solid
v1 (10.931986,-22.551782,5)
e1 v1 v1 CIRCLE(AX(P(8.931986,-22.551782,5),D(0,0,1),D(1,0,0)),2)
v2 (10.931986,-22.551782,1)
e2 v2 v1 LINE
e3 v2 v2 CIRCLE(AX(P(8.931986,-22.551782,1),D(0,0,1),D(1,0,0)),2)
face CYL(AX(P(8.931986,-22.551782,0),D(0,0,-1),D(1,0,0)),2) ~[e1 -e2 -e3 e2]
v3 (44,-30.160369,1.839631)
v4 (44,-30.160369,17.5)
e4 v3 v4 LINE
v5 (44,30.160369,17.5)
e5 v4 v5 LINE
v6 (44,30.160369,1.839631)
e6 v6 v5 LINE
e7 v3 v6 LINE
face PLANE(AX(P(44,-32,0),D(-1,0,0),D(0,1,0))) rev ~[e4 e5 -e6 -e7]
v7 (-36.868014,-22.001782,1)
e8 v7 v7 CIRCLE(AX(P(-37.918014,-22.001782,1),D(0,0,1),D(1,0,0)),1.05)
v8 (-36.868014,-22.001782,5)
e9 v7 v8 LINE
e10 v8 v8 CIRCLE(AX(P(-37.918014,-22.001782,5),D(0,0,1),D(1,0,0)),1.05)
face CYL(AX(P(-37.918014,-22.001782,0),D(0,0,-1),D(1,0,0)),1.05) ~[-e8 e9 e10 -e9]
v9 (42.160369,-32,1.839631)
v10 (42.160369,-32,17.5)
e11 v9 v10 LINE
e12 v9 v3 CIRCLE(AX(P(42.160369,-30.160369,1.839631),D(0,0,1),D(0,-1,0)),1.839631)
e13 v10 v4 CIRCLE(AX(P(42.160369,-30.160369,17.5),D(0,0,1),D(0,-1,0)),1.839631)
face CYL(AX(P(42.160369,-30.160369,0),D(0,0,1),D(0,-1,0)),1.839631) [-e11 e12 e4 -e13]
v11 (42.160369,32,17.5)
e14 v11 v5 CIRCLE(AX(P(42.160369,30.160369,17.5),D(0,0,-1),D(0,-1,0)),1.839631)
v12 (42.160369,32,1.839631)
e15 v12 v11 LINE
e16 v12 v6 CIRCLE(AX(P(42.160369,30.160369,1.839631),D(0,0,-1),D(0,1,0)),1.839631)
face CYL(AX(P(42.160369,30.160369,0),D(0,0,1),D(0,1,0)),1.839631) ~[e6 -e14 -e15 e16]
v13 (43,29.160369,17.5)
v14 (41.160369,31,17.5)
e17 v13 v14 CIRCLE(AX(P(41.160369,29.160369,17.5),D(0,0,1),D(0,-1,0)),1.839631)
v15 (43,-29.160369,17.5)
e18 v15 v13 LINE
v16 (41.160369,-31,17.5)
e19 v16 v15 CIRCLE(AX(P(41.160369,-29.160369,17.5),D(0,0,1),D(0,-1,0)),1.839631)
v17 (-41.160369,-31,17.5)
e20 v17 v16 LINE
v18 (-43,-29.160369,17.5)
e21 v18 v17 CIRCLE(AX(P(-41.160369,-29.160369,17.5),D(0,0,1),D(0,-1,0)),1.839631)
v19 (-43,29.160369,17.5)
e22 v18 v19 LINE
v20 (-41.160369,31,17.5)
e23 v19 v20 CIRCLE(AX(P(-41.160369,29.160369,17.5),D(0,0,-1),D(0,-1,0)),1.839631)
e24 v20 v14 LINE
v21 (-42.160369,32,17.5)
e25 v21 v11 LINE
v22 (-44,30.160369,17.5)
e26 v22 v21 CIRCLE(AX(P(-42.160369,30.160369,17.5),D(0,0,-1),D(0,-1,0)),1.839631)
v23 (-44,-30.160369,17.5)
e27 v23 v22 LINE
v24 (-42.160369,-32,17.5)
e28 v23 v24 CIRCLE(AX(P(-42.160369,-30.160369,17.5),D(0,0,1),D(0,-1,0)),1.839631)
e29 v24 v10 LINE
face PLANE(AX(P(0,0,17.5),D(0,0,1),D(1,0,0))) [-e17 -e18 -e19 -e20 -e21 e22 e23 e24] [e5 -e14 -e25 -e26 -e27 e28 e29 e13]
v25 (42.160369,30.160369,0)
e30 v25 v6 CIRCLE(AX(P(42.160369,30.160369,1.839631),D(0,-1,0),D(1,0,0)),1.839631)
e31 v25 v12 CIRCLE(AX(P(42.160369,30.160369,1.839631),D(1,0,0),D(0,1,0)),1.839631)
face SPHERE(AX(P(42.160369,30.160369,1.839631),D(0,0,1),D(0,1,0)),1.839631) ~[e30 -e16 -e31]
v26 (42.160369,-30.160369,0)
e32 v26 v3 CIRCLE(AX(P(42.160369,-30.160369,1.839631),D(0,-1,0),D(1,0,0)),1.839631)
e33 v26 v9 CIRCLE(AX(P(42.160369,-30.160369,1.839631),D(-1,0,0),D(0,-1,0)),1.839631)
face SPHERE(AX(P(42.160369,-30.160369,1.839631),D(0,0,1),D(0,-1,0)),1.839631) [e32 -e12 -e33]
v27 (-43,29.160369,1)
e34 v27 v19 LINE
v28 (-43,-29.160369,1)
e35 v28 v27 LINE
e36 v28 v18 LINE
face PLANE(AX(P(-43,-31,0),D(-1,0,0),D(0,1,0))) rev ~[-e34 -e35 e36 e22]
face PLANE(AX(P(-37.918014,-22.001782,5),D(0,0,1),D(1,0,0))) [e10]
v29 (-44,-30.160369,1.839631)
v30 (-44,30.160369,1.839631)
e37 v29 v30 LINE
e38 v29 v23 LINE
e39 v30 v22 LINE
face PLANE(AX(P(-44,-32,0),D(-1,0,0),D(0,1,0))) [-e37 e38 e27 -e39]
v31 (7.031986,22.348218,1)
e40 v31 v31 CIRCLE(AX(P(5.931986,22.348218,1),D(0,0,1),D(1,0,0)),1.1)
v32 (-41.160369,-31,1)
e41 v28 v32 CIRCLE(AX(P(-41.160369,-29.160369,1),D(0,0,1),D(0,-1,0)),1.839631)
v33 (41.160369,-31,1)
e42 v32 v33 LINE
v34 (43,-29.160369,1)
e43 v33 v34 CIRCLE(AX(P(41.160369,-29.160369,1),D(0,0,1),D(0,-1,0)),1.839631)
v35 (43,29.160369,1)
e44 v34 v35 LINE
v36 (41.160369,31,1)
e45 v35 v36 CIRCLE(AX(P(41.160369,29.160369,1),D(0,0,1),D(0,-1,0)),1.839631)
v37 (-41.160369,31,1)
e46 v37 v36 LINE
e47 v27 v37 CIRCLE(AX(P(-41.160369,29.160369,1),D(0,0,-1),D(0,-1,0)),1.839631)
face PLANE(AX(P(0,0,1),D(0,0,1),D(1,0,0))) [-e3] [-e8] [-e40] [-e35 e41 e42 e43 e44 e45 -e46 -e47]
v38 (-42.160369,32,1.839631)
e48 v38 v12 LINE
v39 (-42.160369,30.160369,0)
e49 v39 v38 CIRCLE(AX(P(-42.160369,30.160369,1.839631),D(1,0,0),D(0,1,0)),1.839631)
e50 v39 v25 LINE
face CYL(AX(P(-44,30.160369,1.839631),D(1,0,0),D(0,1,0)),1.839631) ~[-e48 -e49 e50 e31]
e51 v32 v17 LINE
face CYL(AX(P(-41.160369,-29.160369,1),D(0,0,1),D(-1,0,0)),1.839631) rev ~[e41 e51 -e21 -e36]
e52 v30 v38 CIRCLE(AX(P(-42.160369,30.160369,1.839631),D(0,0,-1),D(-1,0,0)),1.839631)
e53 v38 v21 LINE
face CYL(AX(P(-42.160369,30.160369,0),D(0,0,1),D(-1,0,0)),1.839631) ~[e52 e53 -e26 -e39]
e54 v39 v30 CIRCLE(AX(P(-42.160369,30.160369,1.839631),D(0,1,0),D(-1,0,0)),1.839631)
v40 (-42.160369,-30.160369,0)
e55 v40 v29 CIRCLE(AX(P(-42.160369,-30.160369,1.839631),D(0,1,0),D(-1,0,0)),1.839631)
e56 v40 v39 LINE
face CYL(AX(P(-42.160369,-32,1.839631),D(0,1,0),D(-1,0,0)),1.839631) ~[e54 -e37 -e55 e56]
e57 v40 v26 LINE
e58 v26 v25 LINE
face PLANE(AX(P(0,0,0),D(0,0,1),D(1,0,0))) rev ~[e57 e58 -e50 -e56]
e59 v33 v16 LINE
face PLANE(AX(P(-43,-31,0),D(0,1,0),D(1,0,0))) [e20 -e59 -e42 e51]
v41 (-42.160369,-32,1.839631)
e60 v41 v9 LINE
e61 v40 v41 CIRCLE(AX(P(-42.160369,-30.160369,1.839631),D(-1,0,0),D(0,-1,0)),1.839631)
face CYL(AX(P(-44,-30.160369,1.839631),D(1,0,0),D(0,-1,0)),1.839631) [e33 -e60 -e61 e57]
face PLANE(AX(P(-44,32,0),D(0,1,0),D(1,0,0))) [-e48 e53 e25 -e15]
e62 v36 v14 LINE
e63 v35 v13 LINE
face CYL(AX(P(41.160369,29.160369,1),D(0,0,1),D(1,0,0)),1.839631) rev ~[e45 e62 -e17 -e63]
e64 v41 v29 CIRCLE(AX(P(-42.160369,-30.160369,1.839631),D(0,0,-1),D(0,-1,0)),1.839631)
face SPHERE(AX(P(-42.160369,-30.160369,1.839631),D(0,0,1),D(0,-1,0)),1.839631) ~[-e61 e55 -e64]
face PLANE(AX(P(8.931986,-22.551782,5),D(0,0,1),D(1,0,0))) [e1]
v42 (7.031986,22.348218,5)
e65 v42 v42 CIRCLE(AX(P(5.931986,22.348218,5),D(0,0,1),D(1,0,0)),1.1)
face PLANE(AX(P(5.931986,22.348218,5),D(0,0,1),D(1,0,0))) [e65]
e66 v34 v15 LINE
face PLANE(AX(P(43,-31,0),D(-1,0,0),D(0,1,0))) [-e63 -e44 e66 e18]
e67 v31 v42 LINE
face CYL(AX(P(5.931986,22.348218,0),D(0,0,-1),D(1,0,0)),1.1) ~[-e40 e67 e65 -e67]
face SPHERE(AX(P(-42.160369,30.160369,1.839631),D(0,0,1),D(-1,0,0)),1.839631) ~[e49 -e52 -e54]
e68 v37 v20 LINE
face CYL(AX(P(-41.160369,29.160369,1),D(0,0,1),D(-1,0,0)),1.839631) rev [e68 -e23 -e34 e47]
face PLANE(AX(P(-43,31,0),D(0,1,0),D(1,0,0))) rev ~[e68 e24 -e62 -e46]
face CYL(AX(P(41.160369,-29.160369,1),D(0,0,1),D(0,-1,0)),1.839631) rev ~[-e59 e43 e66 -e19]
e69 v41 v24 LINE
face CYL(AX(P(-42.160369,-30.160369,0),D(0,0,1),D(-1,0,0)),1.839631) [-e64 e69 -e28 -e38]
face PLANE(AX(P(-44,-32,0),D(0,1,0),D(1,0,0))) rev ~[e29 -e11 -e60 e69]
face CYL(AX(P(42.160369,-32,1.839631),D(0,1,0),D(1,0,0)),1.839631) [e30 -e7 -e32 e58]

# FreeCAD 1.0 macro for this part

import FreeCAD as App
import Part
import Sketcher
from FreeCAD import Vector
Q = App.Units.Quantity


def edges_at(feature, points):
    """Names of the edges that pass closest to the given points."""
    edges = feature.Shape.Edges
    near = lambda p: min(range(len(edges)), key=lambda i: edges[i].distToShape(Part.Vertex(*p))[0])
    return sorted({f"Edge{near(p) + 1}" for p in points})


def add_polygon(sketch, points):
    """Adds a closed chain of lines whose ends are joined by coincident constraints."""
    first, n = sketch.GeometryCount, len(points)
    for a, b in zip(points, points[1:] + points[:1]):
        sketch.addGeometry(Part.LineSegment(App.Vector(*a, 0), App.Vector(*b, 0)), False)
    for i in range(n):
        sketch.addConstraint(Sketcher.Constraint("Coincident", first + i, 2, first + (i + 1) % n, 1))

doc = App.newDocument("Part")
body = doc.addObject("PartDesign::Body", "Body")

sketch1 = body.newObject("Sketcher::SketchObject", "Sketch")
sketch1.AttachmentSupport = (doc.getObject("XY_Plane"), [""])
sketch1.MapMode = "FlatFace"
add_polygon(sketch1, [(-44, 32), (-44, -32), (44, -32), (44, 32)])
add_polygon(sketch1, [(43, -31), (-43, -31), (-43, 31), (43, 31)])
sketch1.addConstraint([
    Sketcher.Constraint("Vertical", 0),
    Sketcher.Constraint("Horizontal", 1),
    Sketcher.Constraint("Vertical", 2),
    Sketcher.Constraint("Horizontal", 3),
    Sketcher.Constraint("Horizontal", 4),
    Sketcher.Constraint("Vertical", 5),
    Sketcher.Constraint("Horizontal", 6),
    Sketcher.Constraint("Vertical", 7),
    Sketcher.Constraint("Symmetric", 0, 2, 2, 2, -1, 1),
    Sketcher.Constraint("Symmetric", 4, 2, 6, 2, -1, 1),
    Sketcher.Constraint("DistanceX", 1, 1, 1, 2, Q("88 mm")),
    Sketcher.Constraint("DistanceX", 4, 2, 4, 1, Q("86 mm")),
    Sketcher.Constraint("DistanceY", 0, 2, 0, 1, Q("64 mm")),
    Sketcher.Constraint("DistanceY", 5, 1, 5, 2, Q("62 mm")),
])
pad1 = body.newObject("PartDesign::Pad", "Pad")
pad1.Profile = sketch1
pad1.Length = 17.5

sketch2 = body.newObject("Sketcher::SketchObject", "Sketch001")
sketch2.AttachmentSupport = (doc.getObject("XY_Plane"), [""])
sketch2.MapMode = "FlatFace"
add_polygon(sketch2, [(-43, 31), (-43, -31), (43, -31), (43, 31)])
sketch2.addGeometry(Part.Circle(Vector(-37.9, -22, 0), Vector(0, 0, 1), 1.1), False)
sketch2.addGeometry(Part.Circle(Vector(8.9, -22.6, 0), Vector(0, 0, 1), 2), False)
sketch2.addGeometry(Part.Circle(Vector(5.9, 22.3, 0), Vector(0, 0, 1), 1.1), False)
sketch2.addConstraint([
    Sketcher.Constraint("Vertical", 0),
    Sketcher.Constraint("Horizontal", 1),
    Sketcher.Constraint("Vertical", 2),
    Sketcher.Constraint("Horizontal", 3),
    Sketcher.Constraint("Symmetric", 0, 2, 2, 2, -1, 1),
    Sketcher.Constraint("Diameter", 5, Q("4 mm")),
    Sketcher.Constraint("Diameter", 4, Q("2.1 mm")),
    Sketcher.Constraint("Diameter", 6, Q("2.2 mm")),
    Sketcher.Constraint("DistanceX", 1, 1, 1, 2, Q("86 mm")),
    Sketcher.Constraint("DistanceY", 0, 2, 0, 1, Q("62 mm")),
    Sketcher.Constraint("DistanceX", 6, 3, 5, 3, Q("3 mm")),
    Sketcher.Constraint("DistanceY", 5, 3, 6, 3, Q("44.9 mm")),
    Sketcher.Constraint("DistanceX", 4, 3, 5, 3, Q("46.85 mm")),
    Sketcher.Constraint("DistanceY", 5, 3, 4, 3, Q("0.55 mm")),
    Sketcher.Constraint("DistanceY", 4, 3, -1, 1, Q("22.001782 mm")),
    Sketcher.Constraint("DistanceX", 4, 3, -1, 1, Q("37.918014 mm")),
])
pad2 = body.newObject("PartDesign::Pad", "Pad001")
pad2.Profile = sketch2
pad2.Length = 1

sketch3 = body.newObject("Sketcher::SketchObject", "Sketch002")
sketch3.AttachmentSupport = (doc.getObject("XY_Plane"), [""])
sketch3.MapMode = "FlatFace"
sketch3.addGeometry([
    Part.Circle(Vector(8.9, -22.6, 0), Vector(0, 0, 1), 2),
    Part.Circle(Vector(-37.9, -22, 0), Vector(0, 0, 1), 1.1),
    Part.Circle(Vector(5.9, 22.3, 0), Vector(0, 0, 1), 1.1),
], False)
sketch3.addConstraint([
    Sketcher.Constraint("Diameter", 0, Q("4 mm")),
    Sketcher.Constraint("Diameter", 1, Q("2.1 mm")),
    Sketcher.Constraint("Diameter", 2, Q("2.2 mm")),
    Sketcher.Constraint("DistanceX", 2, 3, 0, 3, Q("3 mm")),
    Sketcher.Constraint("DistanceY", 0, 3, 2, 3, Q("44.9 mm")),
    Sketcher.Constraint("DistanceX", 1, 3, 0, 3, Q("46.85 mm")),
    Sketcher.Constraint("DistanceY", 0, 3, 1, 3, Q("0.55 mm")),
    Sketcher.Constraint("DistanceY", 0, 3, -1, 1, Q("22.551782 mm")),
    Sketcher.Constraint("DistanceX", -1, 1, 0, 3, Q("8.931986 mm")),
])
pad3 = body.newObject("PartDesign::Pad", "Pad002")
pad3.Profile = sketch3
pad3.Length = 5
doc.recompute()

fillet = body.newObject("PartDesign::Fillet", "Fillet")
fillet.Base = (pad3, edges_at(pad3, [
    (-44, -32, 8.75),
    (44, -32, 8.75),
    (44, 32, 8.75),
    (-44, 32, 8.75),
    (0, -32, 0),
    (-44, 0, 0),
    (0, 32, 0),
    (44, 0, 0),
    (-43, -31, 9.25),
    (-43, 31, 9.25),
    (43, 31, 9.25),
    (43, -31, 9.25),
]))
fillet.Radius = 1.839631

doc.recompute()
